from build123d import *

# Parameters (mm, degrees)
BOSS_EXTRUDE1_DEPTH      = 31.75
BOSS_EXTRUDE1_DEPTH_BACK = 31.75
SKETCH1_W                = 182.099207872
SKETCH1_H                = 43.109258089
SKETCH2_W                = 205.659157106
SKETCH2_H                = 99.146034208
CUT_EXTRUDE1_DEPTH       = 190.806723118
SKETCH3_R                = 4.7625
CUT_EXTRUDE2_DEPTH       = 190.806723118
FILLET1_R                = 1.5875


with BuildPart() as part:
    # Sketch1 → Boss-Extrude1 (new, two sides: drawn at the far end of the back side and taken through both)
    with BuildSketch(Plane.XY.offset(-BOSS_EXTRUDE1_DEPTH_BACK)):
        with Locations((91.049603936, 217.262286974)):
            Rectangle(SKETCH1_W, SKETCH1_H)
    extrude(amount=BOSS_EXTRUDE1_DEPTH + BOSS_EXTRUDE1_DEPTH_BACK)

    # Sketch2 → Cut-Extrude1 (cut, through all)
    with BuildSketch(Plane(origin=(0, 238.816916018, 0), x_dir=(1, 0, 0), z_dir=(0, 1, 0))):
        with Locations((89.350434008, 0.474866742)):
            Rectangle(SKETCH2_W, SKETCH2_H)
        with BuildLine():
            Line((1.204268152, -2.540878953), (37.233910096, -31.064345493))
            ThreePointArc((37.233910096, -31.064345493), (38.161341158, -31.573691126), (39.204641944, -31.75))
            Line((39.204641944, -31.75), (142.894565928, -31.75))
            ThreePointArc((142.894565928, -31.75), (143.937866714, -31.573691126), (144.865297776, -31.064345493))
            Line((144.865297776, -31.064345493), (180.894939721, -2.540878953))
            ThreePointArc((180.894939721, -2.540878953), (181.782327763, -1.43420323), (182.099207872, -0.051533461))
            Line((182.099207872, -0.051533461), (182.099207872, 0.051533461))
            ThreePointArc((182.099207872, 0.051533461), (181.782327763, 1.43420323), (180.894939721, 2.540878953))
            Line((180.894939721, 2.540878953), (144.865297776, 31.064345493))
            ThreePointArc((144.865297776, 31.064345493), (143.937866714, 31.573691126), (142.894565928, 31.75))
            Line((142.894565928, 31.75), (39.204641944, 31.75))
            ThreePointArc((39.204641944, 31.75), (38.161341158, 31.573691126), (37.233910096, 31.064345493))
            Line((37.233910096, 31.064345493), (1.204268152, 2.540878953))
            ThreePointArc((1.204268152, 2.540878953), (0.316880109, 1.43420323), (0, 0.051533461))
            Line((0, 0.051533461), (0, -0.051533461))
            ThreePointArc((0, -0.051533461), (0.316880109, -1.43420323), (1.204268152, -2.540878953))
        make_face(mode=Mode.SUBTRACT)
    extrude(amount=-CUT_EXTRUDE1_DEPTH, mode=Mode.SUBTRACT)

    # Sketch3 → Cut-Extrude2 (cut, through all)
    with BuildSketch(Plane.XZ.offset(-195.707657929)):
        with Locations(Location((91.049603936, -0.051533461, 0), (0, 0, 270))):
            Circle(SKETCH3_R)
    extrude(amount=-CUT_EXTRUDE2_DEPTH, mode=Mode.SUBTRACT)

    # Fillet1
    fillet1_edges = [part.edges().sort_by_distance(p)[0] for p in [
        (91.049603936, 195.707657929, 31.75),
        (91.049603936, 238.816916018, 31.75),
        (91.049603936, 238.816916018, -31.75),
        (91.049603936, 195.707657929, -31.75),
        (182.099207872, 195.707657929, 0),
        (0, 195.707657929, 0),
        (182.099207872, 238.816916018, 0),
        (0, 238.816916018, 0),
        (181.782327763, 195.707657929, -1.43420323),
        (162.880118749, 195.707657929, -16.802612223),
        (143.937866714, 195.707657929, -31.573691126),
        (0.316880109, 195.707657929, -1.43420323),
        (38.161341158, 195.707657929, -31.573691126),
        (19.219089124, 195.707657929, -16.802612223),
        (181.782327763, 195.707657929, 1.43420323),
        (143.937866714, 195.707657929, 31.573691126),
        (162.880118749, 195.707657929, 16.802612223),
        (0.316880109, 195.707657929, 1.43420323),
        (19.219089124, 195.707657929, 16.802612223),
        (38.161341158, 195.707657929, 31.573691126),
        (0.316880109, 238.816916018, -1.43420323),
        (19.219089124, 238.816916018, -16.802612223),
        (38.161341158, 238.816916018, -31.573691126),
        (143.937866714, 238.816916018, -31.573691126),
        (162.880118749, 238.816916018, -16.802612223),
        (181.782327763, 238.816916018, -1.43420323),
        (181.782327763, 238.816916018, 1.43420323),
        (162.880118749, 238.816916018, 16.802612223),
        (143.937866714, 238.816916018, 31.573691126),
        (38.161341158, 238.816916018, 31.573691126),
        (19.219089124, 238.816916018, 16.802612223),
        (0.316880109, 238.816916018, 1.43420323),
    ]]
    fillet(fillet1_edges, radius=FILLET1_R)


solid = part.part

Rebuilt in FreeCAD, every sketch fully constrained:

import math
import FreeCAD as App
import Part
import Sketcher
Q = App.Units.Quantity


def edges_at(feature, points):
    """Names of the edges that pass closest to the given points."""
    edges = feature.Shape.Edges
    near = lambda p: min(range(len(edges)), key=lambda i: edges[i].distToShape(Part.Vertex(*p))[0])
    return sorted({f"Edge{near(p) + 1}" for p in points})


def add_polygon(sketch, points):
    """Adds a closed chain of lines whose ends are joined by coincident constraints."""
    first, n = sketch.GeometryCount, len(points)
    for a, b in zip(points, points[1:] + points[:1]):
        sketch.addGeometry(Part.LineSegment(App.Vector(*a, 0), App.Vector(*b, 0)), False)
    for i in range(n):
        sketch.addConstraint(Sketcher.Constraint("Coincident", first + i, 2, first + (i + 1) % n, 1))

doc = App.newDocument("Part")
body = doc.addObject("PartDesign::Body", "Body")

# Sketch on XY plane
sketch1 = doc.addObject("Sketcher::SketchObject", "Sketch")
body.addObject(sketch1)
sketch1.AttachmentSupport = (doc.XY_Plane, [""])
sketch1.MapMode = "FlatFace"
add_polygon(sketch1, [(0, 239), (0, 196), (182, 196), (182, 239)])  # lines 0-3
sketch1.addConstraint([
    Sketcher.Constraint("Vertical", 0),
    Sketcher.Constraint("Horizontal", 1),
    Sketcher.Constraint("Vertical", 2),
    Sketcher.Constraint("Horizontal", 3),
    Sketcher.Constraint("PointOnObject", 0, 2, -2),
    Sketcher.Constraint("DistanceY", 0, 2, 0, 1, Q("43.109258 mm")),
    Sketcher.Constraint("DistanceX", 1, 1, 1, 2, Q("182.099208 mm")),
    Sketcher.Constraint("DistanceY", -1, 1, 0, 2, Q("195.707658 mm")),
])
pad1 = doc.addObject("PartDesign::Pad", "Pad")
body.addObject(pad1)
pad1.Profile = sketch1
pad1.Type = "TwoLengths"
pad1.Length = Q("1.25 in")
pad1.Length2 = Q("1.25 in")

# Sketch on XZ plane
sketch2 = doc.addObject("Sketcher::SketchObject", "Sketch001")
body.addObject(sketch2)
sketch2.AttachmentSupport = (doc.XZ_Plane, [""])
sketch2.MapMode = "FlatFace"
sketch2.AttachmentOffset = App.Placement(App.Vector(0, 0, -238.816916), App.Rotation())
add_polygon(sketch2, [(-13.48, -50.05), (-13.48, 49.1), (192.18, 49.1), (192.18, -50.05)])  # lines 0-3
sketch2.addGeometry(Part.LineSegment(App.Vector(37.23, 31.06, 0), App.Vector(1.2, 2.54, 0)), False)  # 4
sketch2.addGeometry(Part.ArcOfCircle(Part.Circle(App.Vector(3.17, 0.05, 0), App.Vector(0, 0, 1), 3.17), math.radians(128), math.radians(180)), False)  # 5
sketch2.addGeometry(Part.LineSegment(App.Vector(0, 0.05, 0), App.Vector(0, -0.05, 0)), False)  # 6
sketch2.addGeometry(Part.ArcOfCircle(Part.Circle(App.Vector(3.17, -0.05, 0), App.Vector(0, 0, 1), 3.17), math.radians(180), math.radians(232)), False)  # 7
sketch2.addGeometry(Part.LineSegment(App.Vector(1.2, -2.54, 0), App.Vector(37.23, -31.06, 0)), False)  # 8
sketch2.addGeometry(Part.ArcOfCircle(Part.Circle(App.Vector(39.2, -28.57, 0), App.Vector(0, 0, 1), 3.18), math.radians(-128), math.radians(-90)), False)  # 9
sketch2.addGeometry(Part.LineSegment(App.Vector(39.2, -31.75, 0), App.Vector(142.89, -31.75, 0)), False)  # 10
sketch2.addGeometry(Part.ArcOfCircle(Part.Circle(App.Vector(142.89, -28.57, 0), App.Vector(0, 0, 1), 3.18), math.radians(-90), math.radians(-52)), False)  # 11
sketch2.addGeometry(Part.LineSegment(App.Vector(144.87, -31.06, 0), App.Vector(180.89, -2.54, 0)), False)  # 12
sketch2.addGeometry(Part.ArcOfCircle(Part.Circle(App.Vector(178.92, -0.05, 0), App.Vector(0, 0, 1), 3.17), math.radians(-52), math.radians(0)), False)  # 13
sketch2.addGeometry(Part.LineSegment(App.Vector(182.1, -0.05, 0), App.Vector(182.1, 0.05, 0)), False)  # 14
sketch2.addGeometry(Part.ArcOfCircle(Part.Circle(App.Vector(178.92, 0.05, 0), App.Vector(0, 0, 1), 3.17), math.radians(0), math.radians(52)), False)  # 15
sketch2.addGeometry(Part.LineSegment(App.Vector(180.89, 2.54, 0), App.Vector(144.87, 31.06, 0)), False)  # 16
sketch2.addGeometry(Part.ArcOfCircle(Part.Circle(App.Vector(142.89, 28.57, 0), App.Vector(0, 0, 1), 3.18), math.radians(52), math.radians(90)), False)  # 17
sketch2.addGeometry(Part.LineSegment(App.Vector(142.89, 31.75, 0), App.Vector(39.2, 31.75, 0)), False)  # 18
sketch2.addGeometry(Part.ArcOfCircle(Part.Circle(App.Vector(39.2, 28.57, 0), App.Vector(0, 0, 1), 3.18), math.radians(90), math.radians(128)), False)  # 19
sketch2.addConstraint([
    Sketcher.Constraint("Tangent", 4, 2, 5, 1),
    Sketcher.Constraint("Tangent", 5, 2, 6, 1),
    Sketcher.Constraint("Tangent", 6, 2, 7, 1),
    Sketcher.Constraint("Tangent", 7, 2, 8, 1),
    Sketcher.Constraint("Tangent", 8, 2, 9, 1),
    Sketcher.Constraint("Tangent", 9, 2, 10, 1),
    Sketcher.Constraint("Tangent", 10, 2, 11, 1),
    Sketcher.Constraint("Tangent", 11, 2, 12, 1),
    Sketcher.Constraint("Tangent", 12, 2, 13, 1),
    Sketcher.Constraint("Tangent", 13, 2, 14, 1),
    Sketcher.Constraint("Tangent", 14, 2, 15, 1),
    Sketcher.Constraint("Tangent", 15, 2, 16, 1),
    Sketcher.Constraint("Tangent", 16, 2, 17, 1),
    Sketcher.Constraint("Tangent", 17, 2, 18, 1),
    Sketcher.Constraint("Tangent", 18, 2, 19, 1),
    Sketcher.Constraint("Tangent", 19, 2, 4, 1),
    Sketcher.Constraint("Vertical", 0),
    Sketcher.Constraint("Horizontal", 1),
    Sketcher.Constraint("Vertical", 2),
    Sketcher.Constraint("Horizontal", 3),
    Sketcher.Constraint("Vertical", 6),
    Sketcher.Constraint("Horizontal", 10),
    Sketcher.Constraint("Vertical", 14),
    Sketcher.Constraint("Horizontal", 18),
    Sketcher.Constraint("Equal", 5, 7),
    Sketcher.Constraint("Equal", 7, 9),
    Sketcher.Constraint("Equal", 9, 11),
    Sketcher.Constraint("Equal", 11, 13),
    Sketcher.Constraint("Equal", 13, 15),
    Sketcher.Constraint("Equal", 15, 17),
    Sketcher.Constraint("Equal", 17, 19),
    Sketcher.Constraint("Symmetric", 5, 2, 6, 2, -1, 1),
    Sketcher.Constraint("Symmetric", 11, 3, 17, 3, -1),
    Sketcher.Constraint("Parallel", 4, 12),
    Sketcher.Constraint("Parallel", 8, 16),
    Sketcher.Constraint("Horizontal", 7, 3, 13, 3),
    Sketcher.Constraint("Horizontal", 5, 3, 15, 3),
    Sketcher.Constraint("Radius", 5, Q("0.125 in")),
    Sketcher.Constraint("DistanceY", 9, 2, -1, 1, Q("1.25 in")),
    Sketcher.Constraint("Distance", 4, Q("45.95349 mm")),
    Sketcher.Constraint("DistanceX", 1, 1, 1, 2, Q("205.659157 mm")),
    Sketcher.Constraint("DistanceX", 10, 1, 10, 2, Q("103.689924 mm")),
    Sketcher.Constraint("DistanceY", 0, 1, 0, 2, Q("99.146034 mm")),
    Sketcher.Constraint("DistanceY", 6, 2, 6, 1, Q("0.103067 mm")),
    Sketcher.Constraint("DistanceY", -1, 1, 0, 2, Q("49.09815 mm")),
    Sketcher.Constraint("DistanceX", 0, 2, 17, 3, Q("156.37371 mm")),
])
pocket1 = doc.addObject("PartDesign::Pocket", "Pocket")
body.addObject(pocket1)
pocket1.Profile = sketch2
pocket1.Type = "ThroughAll"
pocket1.Reversed = True

# Sketch on XZ plane
sketch3 = doc.addObject("Sketcher::SketchObject", "Sketch002")
body.addObject(sketch3)
sketch3.AttachmentSupport = (doc.XZ_Plane, [""])
sketch3.MapMode = "FlatFace"
sketch3.AttachmentOffset = App.Placement(App.Vector(0, 0, -195.707658), App.Rotation())
sketch3.addGeometry(Part.Circle(App.Vector(91, -0.1, 0), App.Vector(0, 0, 1), 4.8), False)
sketch3.addConstraint([
    Sketcher.Constraint("Diameter", 0, Q("0.375 in")),
    Sketcher.Constraint("DistanceX", -1, 1, 0, 3, Q("91.049604 mm")),
    Sketcher.Constraint("DistanceY", 0, 3, -1, 1, Q("0.051533 mm")),
])
pocket2 = doc.addObject("PartDesign::Pocket", "Pocket001")
body.addObject(pocket2)
pocket2.Profile = sketch3
pocket2.Type = "ThroughAll"
doc.recompute()

fillet = doc.addObject("PartDesign::Fillet", "Fillet")
body.addObject(fillet)
fillet.Base = (pocket2, edges_at(pocket2, [
    (91.05, 195.708, 31.75),
    (91.05, 238.817, 31.75),
    (91.05, 238.817, -31.75),
    (91.05, 195.708, -31.75),
    (182.099, 195.708, 0),
    (0, 195.708, 0),
    (182.099, 238.817, 0),
    (0, 238.817, 0),
    (181.782, 195.708, -1.434),
    (162.88, 195.708, -16.803),
    (143.938, 195.708, -31.574),
    (0.317, 195.708, -1.434),
    (38.161, 195.708, -31.574),
    (19.219, 195.708, -16.803),
    (181.782, 195.708, 1.434),
    (143.938, 195.708, 31.574),
    (162.88, 195.708, 16.803),
    (0.317, 195.708, 1.434),
    (19.219, 195.708, 16.803),
    (38.161, 195.708, 31.574),
    (0.317, 238.817, -1.434),
    (19.219, 238.817, -16.803),
    (38.161, 238.817, -31.574),
    (143.938, 238.817, -31.574),
    (162.88, 238.817, -16.803),
    (181.782, 238.817, -1.434),
    (181.782, 238.817, 1.434),
    (162.88, 238.817, 16.803),
    (143.938, 238.817, 31.574),
    (38.161, 238.817, 31.574),
    (19.219, 238.817, 16.803),
    (0.317, 238.817, 1.434),
]))
fillet.Radius = Q("0.0625 in")

doc.recompute()
